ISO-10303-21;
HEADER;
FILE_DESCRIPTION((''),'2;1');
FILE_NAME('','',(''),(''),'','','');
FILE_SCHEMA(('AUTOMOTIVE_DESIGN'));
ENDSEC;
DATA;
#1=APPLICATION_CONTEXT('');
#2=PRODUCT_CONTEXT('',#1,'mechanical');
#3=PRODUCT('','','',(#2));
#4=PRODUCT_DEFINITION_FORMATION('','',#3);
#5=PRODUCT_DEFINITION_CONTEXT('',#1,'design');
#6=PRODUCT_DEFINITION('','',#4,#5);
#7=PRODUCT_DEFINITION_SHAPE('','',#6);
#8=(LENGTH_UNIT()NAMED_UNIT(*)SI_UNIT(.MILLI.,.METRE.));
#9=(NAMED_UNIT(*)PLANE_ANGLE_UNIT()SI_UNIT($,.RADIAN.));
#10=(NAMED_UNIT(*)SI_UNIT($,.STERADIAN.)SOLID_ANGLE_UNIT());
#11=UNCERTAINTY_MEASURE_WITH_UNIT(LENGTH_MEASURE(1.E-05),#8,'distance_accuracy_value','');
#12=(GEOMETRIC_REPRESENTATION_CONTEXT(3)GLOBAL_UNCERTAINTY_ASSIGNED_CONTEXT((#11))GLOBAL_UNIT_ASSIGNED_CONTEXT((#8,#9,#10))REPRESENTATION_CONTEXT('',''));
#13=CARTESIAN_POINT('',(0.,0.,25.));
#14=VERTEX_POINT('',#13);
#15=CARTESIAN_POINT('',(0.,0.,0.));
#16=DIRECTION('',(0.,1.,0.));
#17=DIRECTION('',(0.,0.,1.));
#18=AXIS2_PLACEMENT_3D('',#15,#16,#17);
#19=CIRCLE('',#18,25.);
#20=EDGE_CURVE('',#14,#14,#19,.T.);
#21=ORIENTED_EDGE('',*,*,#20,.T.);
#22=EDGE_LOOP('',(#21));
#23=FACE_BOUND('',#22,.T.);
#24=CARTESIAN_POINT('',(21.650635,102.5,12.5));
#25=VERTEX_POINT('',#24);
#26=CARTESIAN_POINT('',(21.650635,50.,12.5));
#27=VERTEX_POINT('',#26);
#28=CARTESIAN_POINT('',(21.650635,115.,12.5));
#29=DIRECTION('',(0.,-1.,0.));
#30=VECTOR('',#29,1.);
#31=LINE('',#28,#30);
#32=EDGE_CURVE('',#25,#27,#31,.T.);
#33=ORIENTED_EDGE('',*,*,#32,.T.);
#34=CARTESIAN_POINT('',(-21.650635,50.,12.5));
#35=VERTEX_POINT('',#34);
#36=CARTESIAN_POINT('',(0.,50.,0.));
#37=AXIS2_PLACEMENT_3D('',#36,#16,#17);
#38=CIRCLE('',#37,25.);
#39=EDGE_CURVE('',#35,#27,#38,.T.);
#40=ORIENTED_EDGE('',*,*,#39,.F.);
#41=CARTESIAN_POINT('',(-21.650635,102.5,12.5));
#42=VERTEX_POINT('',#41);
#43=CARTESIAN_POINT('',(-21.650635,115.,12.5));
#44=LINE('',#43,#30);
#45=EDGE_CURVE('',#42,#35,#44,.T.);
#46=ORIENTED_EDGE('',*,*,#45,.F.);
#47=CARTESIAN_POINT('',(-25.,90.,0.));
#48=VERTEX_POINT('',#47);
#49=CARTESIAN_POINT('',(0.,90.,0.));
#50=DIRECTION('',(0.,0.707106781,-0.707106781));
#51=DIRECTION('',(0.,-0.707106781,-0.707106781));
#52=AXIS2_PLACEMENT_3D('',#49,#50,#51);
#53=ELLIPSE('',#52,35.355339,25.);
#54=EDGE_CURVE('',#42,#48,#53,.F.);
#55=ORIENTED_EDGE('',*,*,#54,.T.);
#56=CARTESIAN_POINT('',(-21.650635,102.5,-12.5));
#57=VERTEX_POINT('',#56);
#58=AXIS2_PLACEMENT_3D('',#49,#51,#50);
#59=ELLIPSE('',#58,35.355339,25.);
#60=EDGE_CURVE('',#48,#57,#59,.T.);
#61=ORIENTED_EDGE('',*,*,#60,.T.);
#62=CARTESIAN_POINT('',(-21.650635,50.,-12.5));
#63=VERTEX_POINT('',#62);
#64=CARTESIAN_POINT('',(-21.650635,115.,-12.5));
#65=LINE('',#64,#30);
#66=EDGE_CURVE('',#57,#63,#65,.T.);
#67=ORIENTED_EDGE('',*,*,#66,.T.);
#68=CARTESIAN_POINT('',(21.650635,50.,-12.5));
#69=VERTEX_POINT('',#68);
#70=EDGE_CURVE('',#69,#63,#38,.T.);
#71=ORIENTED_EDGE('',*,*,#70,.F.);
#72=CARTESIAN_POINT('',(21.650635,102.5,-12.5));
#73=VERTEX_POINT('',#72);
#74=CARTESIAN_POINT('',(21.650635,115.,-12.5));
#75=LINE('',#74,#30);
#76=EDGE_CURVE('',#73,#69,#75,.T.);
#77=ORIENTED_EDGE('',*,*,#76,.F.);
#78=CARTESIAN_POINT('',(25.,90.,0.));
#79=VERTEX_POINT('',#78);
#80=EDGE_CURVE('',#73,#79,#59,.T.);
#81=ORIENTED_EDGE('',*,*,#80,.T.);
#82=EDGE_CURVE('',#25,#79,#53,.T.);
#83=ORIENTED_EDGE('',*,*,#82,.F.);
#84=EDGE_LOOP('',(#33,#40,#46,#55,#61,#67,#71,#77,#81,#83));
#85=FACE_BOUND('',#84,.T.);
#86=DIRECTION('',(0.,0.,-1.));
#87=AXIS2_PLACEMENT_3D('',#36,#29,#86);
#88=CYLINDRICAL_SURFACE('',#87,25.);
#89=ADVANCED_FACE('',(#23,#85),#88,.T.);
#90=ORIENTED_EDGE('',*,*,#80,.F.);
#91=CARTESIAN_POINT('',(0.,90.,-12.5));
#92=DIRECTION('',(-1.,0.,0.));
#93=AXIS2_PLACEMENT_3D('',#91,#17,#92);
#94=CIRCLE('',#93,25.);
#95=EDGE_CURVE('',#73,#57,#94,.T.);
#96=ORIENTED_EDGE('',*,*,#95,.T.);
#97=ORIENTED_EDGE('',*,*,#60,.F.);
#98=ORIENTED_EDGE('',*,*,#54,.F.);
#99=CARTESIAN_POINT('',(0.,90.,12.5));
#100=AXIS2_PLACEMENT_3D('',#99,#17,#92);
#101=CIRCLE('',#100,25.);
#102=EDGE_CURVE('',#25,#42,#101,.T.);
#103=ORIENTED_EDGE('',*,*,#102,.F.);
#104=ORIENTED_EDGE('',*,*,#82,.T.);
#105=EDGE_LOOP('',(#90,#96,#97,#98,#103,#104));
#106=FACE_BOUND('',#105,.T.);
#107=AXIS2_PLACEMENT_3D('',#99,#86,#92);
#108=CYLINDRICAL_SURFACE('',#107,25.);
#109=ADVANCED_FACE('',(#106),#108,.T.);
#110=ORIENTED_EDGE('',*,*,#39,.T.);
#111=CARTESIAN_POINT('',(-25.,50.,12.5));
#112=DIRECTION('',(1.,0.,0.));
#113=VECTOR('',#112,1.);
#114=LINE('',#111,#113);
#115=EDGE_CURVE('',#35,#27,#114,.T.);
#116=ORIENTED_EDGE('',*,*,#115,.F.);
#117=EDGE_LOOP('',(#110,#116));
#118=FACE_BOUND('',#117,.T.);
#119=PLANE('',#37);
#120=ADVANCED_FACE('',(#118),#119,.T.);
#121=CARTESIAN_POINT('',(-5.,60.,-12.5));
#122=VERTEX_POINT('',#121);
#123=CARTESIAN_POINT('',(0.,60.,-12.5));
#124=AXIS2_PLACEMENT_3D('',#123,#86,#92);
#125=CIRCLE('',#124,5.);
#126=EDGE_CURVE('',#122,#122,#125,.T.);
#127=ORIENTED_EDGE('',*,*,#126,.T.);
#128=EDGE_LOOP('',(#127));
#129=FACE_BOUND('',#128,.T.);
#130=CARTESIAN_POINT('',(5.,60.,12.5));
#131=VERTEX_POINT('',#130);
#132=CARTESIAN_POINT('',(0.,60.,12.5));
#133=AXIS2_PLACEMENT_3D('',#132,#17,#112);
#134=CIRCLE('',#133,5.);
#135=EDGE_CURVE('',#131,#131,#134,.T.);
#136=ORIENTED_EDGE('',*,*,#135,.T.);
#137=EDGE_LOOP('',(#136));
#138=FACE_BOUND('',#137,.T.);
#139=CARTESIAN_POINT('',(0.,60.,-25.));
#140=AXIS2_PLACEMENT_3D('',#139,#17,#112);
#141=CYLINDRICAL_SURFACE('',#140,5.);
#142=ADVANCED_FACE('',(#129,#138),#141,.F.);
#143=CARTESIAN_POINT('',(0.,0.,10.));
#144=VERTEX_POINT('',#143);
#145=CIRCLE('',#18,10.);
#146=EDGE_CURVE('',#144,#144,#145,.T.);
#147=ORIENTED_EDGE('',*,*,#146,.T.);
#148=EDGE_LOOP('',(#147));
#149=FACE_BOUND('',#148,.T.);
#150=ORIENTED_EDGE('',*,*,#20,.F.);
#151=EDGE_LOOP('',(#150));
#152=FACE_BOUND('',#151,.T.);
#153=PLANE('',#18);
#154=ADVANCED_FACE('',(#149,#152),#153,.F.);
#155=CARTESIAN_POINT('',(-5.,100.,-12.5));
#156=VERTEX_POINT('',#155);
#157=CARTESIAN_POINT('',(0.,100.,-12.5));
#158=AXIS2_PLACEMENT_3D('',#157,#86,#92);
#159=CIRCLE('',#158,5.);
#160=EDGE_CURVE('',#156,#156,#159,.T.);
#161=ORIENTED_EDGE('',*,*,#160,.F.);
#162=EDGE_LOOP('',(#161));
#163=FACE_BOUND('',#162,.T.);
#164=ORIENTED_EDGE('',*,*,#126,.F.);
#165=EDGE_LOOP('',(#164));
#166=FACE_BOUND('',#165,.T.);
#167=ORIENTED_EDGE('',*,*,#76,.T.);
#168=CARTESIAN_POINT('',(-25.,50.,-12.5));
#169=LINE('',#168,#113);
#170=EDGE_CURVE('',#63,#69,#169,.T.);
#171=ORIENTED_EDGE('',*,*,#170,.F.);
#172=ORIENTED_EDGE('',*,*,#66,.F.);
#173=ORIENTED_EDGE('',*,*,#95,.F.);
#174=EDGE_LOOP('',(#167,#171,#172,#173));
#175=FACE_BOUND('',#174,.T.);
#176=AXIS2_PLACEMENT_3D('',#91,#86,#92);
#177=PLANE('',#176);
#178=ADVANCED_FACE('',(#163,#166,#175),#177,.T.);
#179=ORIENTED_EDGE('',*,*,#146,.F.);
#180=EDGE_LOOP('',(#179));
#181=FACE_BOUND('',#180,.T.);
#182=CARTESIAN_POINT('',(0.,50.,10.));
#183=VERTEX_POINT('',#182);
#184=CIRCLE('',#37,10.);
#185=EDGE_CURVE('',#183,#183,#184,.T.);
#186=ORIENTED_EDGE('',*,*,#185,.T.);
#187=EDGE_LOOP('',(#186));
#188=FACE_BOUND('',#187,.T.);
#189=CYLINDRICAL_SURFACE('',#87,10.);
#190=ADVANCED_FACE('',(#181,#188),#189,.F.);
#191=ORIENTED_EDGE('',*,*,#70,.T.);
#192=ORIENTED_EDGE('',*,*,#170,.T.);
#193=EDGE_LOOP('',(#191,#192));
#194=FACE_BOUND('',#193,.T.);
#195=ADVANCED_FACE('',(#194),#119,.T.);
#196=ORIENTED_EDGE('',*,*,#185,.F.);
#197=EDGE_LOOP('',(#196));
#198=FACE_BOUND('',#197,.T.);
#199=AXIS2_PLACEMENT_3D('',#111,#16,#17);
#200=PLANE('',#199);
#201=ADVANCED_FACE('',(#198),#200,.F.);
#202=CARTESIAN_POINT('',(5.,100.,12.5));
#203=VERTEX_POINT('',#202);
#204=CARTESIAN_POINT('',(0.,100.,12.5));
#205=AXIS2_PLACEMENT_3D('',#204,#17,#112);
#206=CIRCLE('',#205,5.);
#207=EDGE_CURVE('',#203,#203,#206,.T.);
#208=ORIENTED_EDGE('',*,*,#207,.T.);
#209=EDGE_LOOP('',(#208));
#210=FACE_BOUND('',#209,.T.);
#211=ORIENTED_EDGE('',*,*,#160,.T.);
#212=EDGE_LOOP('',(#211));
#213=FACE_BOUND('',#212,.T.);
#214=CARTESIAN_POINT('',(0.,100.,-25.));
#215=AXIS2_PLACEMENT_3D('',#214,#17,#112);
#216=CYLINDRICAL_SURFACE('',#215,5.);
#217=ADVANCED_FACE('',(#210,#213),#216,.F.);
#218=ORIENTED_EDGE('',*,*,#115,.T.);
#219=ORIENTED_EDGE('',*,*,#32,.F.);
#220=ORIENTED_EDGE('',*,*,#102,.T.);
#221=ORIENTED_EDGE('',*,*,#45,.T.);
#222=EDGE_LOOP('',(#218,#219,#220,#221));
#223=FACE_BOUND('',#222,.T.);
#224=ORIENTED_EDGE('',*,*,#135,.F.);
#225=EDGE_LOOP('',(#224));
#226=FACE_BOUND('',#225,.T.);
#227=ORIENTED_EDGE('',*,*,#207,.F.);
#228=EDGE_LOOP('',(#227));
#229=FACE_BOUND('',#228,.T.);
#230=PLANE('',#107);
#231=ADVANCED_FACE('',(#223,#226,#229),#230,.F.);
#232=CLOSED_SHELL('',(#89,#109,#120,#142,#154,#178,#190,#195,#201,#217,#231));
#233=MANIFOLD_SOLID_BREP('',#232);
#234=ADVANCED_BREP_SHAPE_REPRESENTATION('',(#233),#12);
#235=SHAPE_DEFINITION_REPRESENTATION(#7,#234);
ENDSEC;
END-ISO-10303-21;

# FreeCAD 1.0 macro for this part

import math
import FreeCAD as App
import Part
import Sketcher

V = App.Vector
Q = App.Units.Quantity

doc = App.newDocument("Part")
body = doc.addObject("PartDesign::Body", "Body")

# Sketch on XZ plane
sketch1 = body.newObject("Sketcher::SketchObject", "Sketch")
sketch1.AttachmentSupport = (doc.getObject("XZ_Plane"), [""])
sketch1.MapMode = "FlatFace"
sketch1.addGeometry([
    Part.Circle(V(0, 0, 0), V(0, 0, 1), 25),
    Part.Circle(V(0, 0, 0), V(0, 0, 1), 10),
], False)
sketch1.addConstraint([
    Sketcher.Constraint("Coincident", 0, 3, -1, 1),
    Sketcher.Constraint("Coincident", 1, 3, -1, 1),
    Sketcher.Constraint("Diameter", 0, Q("50 mm")),
    Sketcher.Constraint("Diameter", 1, Q("20 mm")),
])
pad1 = body.newObject("PartDesign::Pad", "Pad")
pad1.Profile = sketch1
pad1.Length = 50
pad1.Reversed = True

# Sketch on XY plane
sketch2 = body.newObject("Sketcher::SketchObject", "Sketch001")
sketch2.AttachmentSupport = (doc.getObject("XY_Plane"), [""])
sketch2.MapMode = "FlatFace"
sketch2.addGeometry([
    Part.LineSegment(V(-25, 50, 0), V(25, 50, 0)),
    Part.LineSegment(V(25, 50, 0), V(25, 90, 0)),
    Part.ArcOfCircle(Part.Circle(V(0, 90, 0), V(0, 0, 1), 25), math.radians(0), math.radians(180)),
    Part.LineSegment(V(-25, 90, 0), V(-25, 50, 0)),
], False)
sketch2.addConstraint([
    Sketcher.Constraint("Coincident", 0, 2, 1, 1),
    Sketcher.Constraint("Tangent", 1, 2, 2, 1),
    Sketcher.Constraint("Tangent", 2, 2, 3, 1),
    Sketcher.Constraint("Coincident", 3, 2, 0, 1),
    Sketcher.Constraint("Horizontal", 0),
    Sketcher.Constraint("Vertical", 1),
    Sketcher.Constraint("Vertical", 3),
    Sketcher.Constraint("PointOnObject", 2, 3, -2),
    Sketcher.Constraint("Radius", 2, Q("25 mm")),
    Sketcher.Constraint("DistanceY", 1, 1, 1, 2, Q("40 mm")),
    Sketcher.Constraint("DistanceY", -1, 1, 2, 3, Q("90 mm")),
])
pad2 = body.newObject("PartDesign::Pad", "Pad001")
pad2.Profile = sketch2
pad2.Length = 25
pad2.Midplane = True

# Sketch on XZ plane
sketch3 = body.newObject("Sketcher::SketchObject", "Sketch002")
sketch3.AttachmentSupport = (doc.getObject("XZ_Plane"), [""])
sketch3.MapMode = "FlatFace"
sketch3.AttachmentOffset = App.Placement(V(0, 0, -50), App.Rotation())
sketch3.addGeometry([
    Part.LineSegment(V(21.650635, -12.5, 0), V(25, -12.5, 0)),  # 0
    Part.LineSegment(V(25, -12.5, 0), V(25, 0, 0)),  # 1
    Part.ArcOfCircle(Part.Circle(V(0, 0, 0), V(0, 0, 1), 25), math.radians(-30), math.radians(0)),  # 2
    Part.ArcOfCircle(Part.Circle(V(0, 0, 0), V(0, 0, 1), 25), math.radians(0), math.radians(30)),  # 3
    Part.LineSegment(V(25, 0, 0), V(25, 12.5, 0)),  # 4
    Part.LineSegment(V(25, 12.5, 0), V(21.650635, 12.5, 0)),  # 5
    Part.LineSegment(V(-25, 0, 0), V(-25, -12.5, 0)),  # 6
    Part.LineSegment(V(-25, -12.5, 0), V(-21.650635, -12.5, 0)),  # 7
    Part.ArcOfCircle(Part.Circle(V(0, 0, 0), V(0, 0, 1), 25), math.radians(-180), math.radians(-150)),  # 8
    Part.LineSegment(V(-25, 12.5, 0), V(-25, 0, 0)),  # 9
    Part.ArcOfCircle(Part.Circle(V(0, 0, 0), V(0, 0, 1), 25), math.radians(150), math.radians(180)),  # 10
    Part.LineSegment(V(-21.650635, 12.5, 0), V(-25, 12.5, 0)),  # 11
], False)
sketch3.addConstraint([
    Sketcher.Constraint("Coincident", 0, 2, 1, 1),
    Sketcher.Constraint("Tangent", 1, 2, 2, 2),
    Sketcher.Constraint("Coincident", 2, 1, 0, 1),
    Sketcher.Constraint("Tangent", 3, 1, 4, 1),
    Sketcher.Constraint("Coincident", 4, 2, 5, 1),
    Sketcher.Constraint("Coincident", 5, 2, 3, 2),
    Sketcher.Constraint("Coincident", 6, 2, 7, 1),
    Sketcher.Constraint("Coincident", 7, 2, 8, 2),
    Sketcher.Constraint("Tangent", 8, 1, 6, 1),
    Sketcher.Constraint("Tangent", 9, 2, 10, 2),
    Sketcher.Constraint("Coincident", 10, 1, 11, 1),
    Sketcher.Constraint("Coincident", 11, 2, 9, 1),
    Sketcher.Constraint("Horizontal", 0),
    Sketcher.Constraint("Vertical", 1),
    Sketcher.Constraint("Vertical", 4),
    Sketcher.Constraint("Horizontal", 5),
    Sketcher.Constraint("Vertical", 6),
    Sketcher.Constraint("Horizontal", 7),
    Sketcher.Constraint("Vertical", 9),
    Sketcher.Constraint("Horizontal", 11),
    Sketcher.Constraint("Coincident", 2, 3, -1, 1),
    Sketcher.Constraint("Coincident", 3, 3, -1, 1),
    Sketcher.Constraint("Coincident", 8, 3, -1, 1),
    Sketcher.Constraint("Coincident", 10, 3, -1, 1),
    Sketcher.Constraint("Equal", 2, 3),
    Sketcher.Constraint("Equal", 3, 8),
    Sketcher.Constraint("Equal", 8, 10),
    Sketcher.Constraint("Horizontal", 2, 1, 6, 2),
    Sketcher.Constraint("Horizontal", 5, 2, 10, 1),
    Sketcher.Constraint("Vertical", 2, 1, 5, 2),
    Sketcher.Constraint("Radius", 2, Q("25 mm")),
    Sketcher.Constraint("DistanceY", 1, 1, 1, 2, Q("12.5 mm")),
])
pocket1 = body.newObject("PartDesign::Pocket", "Pocket")
pocket1.Profile = sketch3
pocket1.Type = "ThroughAll"

# Sketch on XY plane
sketch4 = body.newObject("Sketcher::SketchObject", "Sketch003")
sketch4.AttachmentSupport = (doc.getObject("XY_Plane"), [""])
sketch4.MapMode = "FlatFace"
sketch4.AttachmentOffset = App.Placement(V(0, 0, 12.5), App.Rotation())
sketch4.addGeometry([
    Part.Circle(V(0, 100, 0), V(0, 0, 1), 5),
    Part.Circle(V(0, 60, 0), V(0, 0, 1), 5),
], False)
sketch4.addConstraint([
    Sketcher.Constraint("Equal", 0, 1),
    Sketcher.Constraint("PointOnObject", 0, 3, -2),
    Sketcher.Constraint("PointOnObject", 1, 3, -2),
    Sketcher.Constraint("Diameter", 0, Q("10 mm")),
    Sketcher.Constraint("DistanceY", -1, 1, 0, 3, Q("100 mm")),
    Sketcher.Constraint("DistanceY", -1, 1, 1, 3, Q("60 mm")),
])
pocket2 = body.newObject("PartDesign::Pocket", "Pocket001")
pocket2.Profile = sketch4
pocket2.Type = "ThroughAll"

doc.recompute()
